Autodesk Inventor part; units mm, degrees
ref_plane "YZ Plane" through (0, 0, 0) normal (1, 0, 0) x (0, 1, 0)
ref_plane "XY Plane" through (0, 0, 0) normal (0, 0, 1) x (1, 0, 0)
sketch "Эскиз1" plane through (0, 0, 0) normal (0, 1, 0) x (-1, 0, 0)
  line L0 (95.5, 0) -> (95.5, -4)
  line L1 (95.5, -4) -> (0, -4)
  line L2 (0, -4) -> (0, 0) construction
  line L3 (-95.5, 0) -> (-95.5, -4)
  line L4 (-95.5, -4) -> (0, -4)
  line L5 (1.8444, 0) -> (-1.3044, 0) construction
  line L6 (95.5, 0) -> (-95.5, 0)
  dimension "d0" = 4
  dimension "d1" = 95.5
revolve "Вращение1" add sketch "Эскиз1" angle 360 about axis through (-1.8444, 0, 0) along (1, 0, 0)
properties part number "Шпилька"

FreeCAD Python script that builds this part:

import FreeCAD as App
import Part
import Sketcher
from FreeCAD import Vector

doc = App.newDocument("Part")
body = doc.addObject("PartDesign::Body", "Body")

sketch1 = body.newObject("Sketcher::SketchObject", "Sketch")
sketch1.AttachmentSupport = (doc.getObject("XZ_Plane"), [""])
sketch1.MapMode = "FlatFace"
sketch1.addGeometry([
    Part.LineSegment(Vector(-95.5, -4, 0), Vector(-95.5, 0, 0)),
    Part.LineSegment(Vector(-95.5, 0, 0), Vector(95.5, 0, 0)),
    Part.LineSegment(Vector(95.5, 0, 0), Vector(95.5, -4, 0)),
    Part.LineSegment(Vector(95.5, -4, 0), Vector(-95.5, -4, 0)),
], False)
sketch1.addConstraint([
    Sketcher.Constraint("Coincident", 0, 2, 1, 1),
    Sketcher.Constraint("Coincident", 1, 2, 2, 1),
    Sketcher.Constraint("Coincident", 2, 2, 3, 1),
    Sketcher.Constraint("Coincident", 3, 2, 0, 1),
    Sketcher.Constraint("Vertical", 0),
    Sketcher.Constraint("Horizontal", 1),
    Sketcher.Constraint("Vertical", 2),
    Sketcher.Constraint("Horizontal", 3),
    Sketcher.Constraint("Symmetric", 0, 2, 1, 2, -1, 1),
    Sketcher.Constraint("DistanceY", 0, 1, 0, 2, 4.0),
    Sketcher.Constraint("DistanceX", 0, 2, -1, 1, 95.5),
])
revolution = body.newObject("PartDesign::Revolution", "Revolution")
revolution.Profile = sketch1
revolution.ReferenceAxis = (sketch1, ["H_Axis"])
revolution.Angle = 360

doc.recompute()
